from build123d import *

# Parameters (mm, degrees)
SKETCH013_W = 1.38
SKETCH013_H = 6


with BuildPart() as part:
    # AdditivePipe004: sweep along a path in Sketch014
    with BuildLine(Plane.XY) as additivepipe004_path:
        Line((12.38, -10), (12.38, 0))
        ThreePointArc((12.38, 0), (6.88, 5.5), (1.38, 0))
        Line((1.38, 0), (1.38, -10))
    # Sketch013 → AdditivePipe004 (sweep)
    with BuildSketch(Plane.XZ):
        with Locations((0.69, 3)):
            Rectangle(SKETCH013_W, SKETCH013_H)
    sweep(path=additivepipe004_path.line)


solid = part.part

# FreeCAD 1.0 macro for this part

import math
import FreeCAD as App
import Part
import Sketcher

V = App.Vector

doc = App.newDocument("Part")
body = doc.addObject("PartDesign::Body", "Body")

# Sketch on XZ plane
sketch1 = body.newObject("Sketcher::SketchObject", "Sketch")
sketch1.AttachmentSupport = (doc.getObject("XZ_Plane"), [""])
sketch1.MapMode = "FlatFace"
sketch1.addGeometry(Part.LineSegment(V(0, 6, 0), V(0, 0, 0)), False)
sketch1.addGeometry(Part.LineSegment(V(0, 0, 0), V(1.4, 0, 0)), False)
sketch1.addGeometry(Part.LineSegment(V(1.4, 0, 0), V(1.4, 6, 0)), False)
sketch1.addGeometry(Part.LineSegment(V(1.4, 6, 0), V(0, 6, 0)), False)
sketch1.addConstraint(Sketcher.Constraint("Coincident", 0, 2, 1, 1))
sketch1.addConstraint(Sketcher.Constraint("Coincident", 1, 2, 2, 1))
sketch1.addConstraint(Sketcher.Constraint("Coincident", 2, 2, 3, 1))
sketch1.addConstraint(Sketcher.Constraint("Coincident", 3, 2, 0, 1))
sketch1.addConstraint(Sketcher.Constraint("Vertical", 0))
sketch1.addConstraint(Sketcher.Constraint("Horizontal", 1))
sketch1.addConstraint(Sketcher.Constraint("Vertical", 2))
sketch1.addConstraint(Sketcher.Constraint("Horizontal", 3))
sketch1.addConstraint(Sketcher.Constraint("Coincident", 0, 2, -1, 1))
sketch1.addConstraint(Sketcher.Constraint("DistanceY", 0, 2, 0, 1, 6.0))
sketch1.addConstraint(Sketcher.Constraint("DistanceX", 1, 1, 1, 2, 1.38))

# Sketch on XY plane
sketch2 = body.newObject("Sketcher::SketchObject", "Sketch001")
sketch2.AttachmentSupport = (doc.getObject("XY_Plane"), [""])
sketch2.MapMode = "FlatFace"
sketch2.addGeometry(Part.LineSegment(V(12, -10, 0), V(12, 0, 0)), False)
sketch2.addGeometry(Part.ArcOfCircle(Part.Circle(V(7, 0, 0), V(0, 0, 1), 6), math.radians(0), math.radians(180)), False)
sketch2.addGeometry(Part.LineSegment(V(1, 0, 0), V(1, -10, 0)), False)
sketch2.addConstraint(Sketcher.Constraint("Tangent", 0, 2, 1, 1))
sketch2.addConstraint(Sketcher.Constraint("Tangent", 1, 2, 2, 1))
sketch2.addConstraint(Sketcher.Constraint("Vertical", 0))
sketch2.addConstraint(Sketcher.Constraint("Vertical", 2))
sketch2.addConstraint(Sketcher.Constraint("PointOnObject", 1, 3, -1))
sketch2.addConstraint(Sketcher.Constraint("Horizontal", 0, 1, 2, 2))
sketch2.addConstraint(Sketcher.Constraint("Radius", 1, 5.5))
sketch2.addConstraint(Sketcher.Constraint("DistanceY", 0, 1, 0, 2, 10.0))
sketch2.addConstraint(Sketcher.Constraint("DistanceX", -1, 1, 1, 3, 6.88))
doc.recompute()

additivepipe = body.newObject("PartDesign::AdditivePipe", "AdditivePipe")
additivepipe.Profile = sketch1
additivepipe.Spine = (sketch2, ["Edge1", "Edge2", "Edge3"])

doc.recompute()
